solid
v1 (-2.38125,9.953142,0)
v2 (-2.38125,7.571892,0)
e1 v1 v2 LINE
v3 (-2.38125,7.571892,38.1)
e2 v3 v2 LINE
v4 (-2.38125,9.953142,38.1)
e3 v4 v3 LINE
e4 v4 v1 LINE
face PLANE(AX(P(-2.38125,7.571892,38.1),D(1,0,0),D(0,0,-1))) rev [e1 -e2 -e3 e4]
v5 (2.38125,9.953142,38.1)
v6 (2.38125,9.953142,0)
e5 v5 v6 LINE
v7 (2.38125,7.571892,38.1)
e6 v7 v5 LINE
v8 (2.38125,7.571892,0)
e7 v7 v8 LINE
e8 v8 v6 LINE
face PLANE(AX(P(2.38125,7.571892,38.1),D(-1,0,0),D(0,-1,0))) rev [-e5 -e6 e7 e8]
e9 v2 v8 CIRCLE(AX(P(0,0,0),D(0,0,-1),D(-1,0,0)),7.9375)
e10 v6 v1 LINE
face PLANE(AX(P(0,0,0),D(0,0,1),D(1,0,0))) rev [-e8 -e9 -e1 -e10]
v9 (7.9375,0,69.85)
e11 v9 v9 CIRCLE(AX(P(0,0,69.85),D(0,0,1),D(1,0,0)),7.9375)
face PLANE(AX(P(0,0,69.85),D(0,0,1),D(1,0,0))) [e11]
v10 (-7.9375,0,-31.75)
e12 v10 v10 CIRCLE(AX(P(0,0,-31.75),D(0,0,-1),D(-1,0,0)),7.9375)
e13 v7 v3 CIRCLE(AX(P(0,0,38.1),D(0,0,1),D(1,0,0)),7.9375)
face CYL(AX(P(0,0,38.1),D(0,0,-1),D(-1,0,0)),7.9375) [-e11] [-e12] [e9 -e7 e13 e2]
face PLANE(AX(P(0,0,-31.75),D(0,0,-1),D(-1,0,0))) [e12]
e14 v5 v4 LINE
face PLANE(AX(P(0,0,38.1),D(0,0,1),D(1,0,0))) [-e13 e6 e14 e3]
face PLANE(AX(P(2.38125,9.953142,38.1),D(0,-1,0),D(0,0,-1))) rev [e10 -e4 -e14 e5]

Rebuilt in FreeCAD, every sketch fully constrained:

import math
import FreeCAD as App
import Part
import Sketcher

V = App.Vector
Q = App.Units.Quantity

doc = App.newDocument("Part")
params = doc.addObject("Spreadsheet::Sheet", "Params")
for row, (alias, value) in enumerate([
    ("sketch1_radius", "0.3125 in"),
    ("sketch1_width", "0.1875 in"),
    ("sketch1_height", "0.09375 in"),
    ("pad1_length", "1.5 in"),
    ("sketch2_diameter", "0.625 in"),
    ("pad2_length", "1.25 in"),
    ("sketch3_diameter", "0.625 in"),
    ("pad3_length", "1.25 in"),
], start=1):
    params.set(f"A{row}", alias)
    params.set(f"B{row}", "=" + value)
    params.setAlias(f"B{row}", alias)

body = doc.addObject("PartDesign::Body", "Body")

sketch1 = body.newObject("Sketcher::SketchObject", "Sketch")
sketch1.AttachmentSupport = (doc.getObject("XY_Plane"), [""])
sketch1.MapMode = "FlatFace"
sketch1.addGeometry([
    Part.LineSegment(V(2.4, 7.6, 0), V(2.4, 10, 0)),
    Part.LineSegment(V(2.4, 10, 0), V(-2.4, 10, 0)),
    Part.LineSegment(V(-2.4, 10, 0), V(-2.4, 7.6, 0)),
    Part.ArcOfCircle(Part.Circle(V(0, 0, 0), V(0, 0, 1), 7.9), math.radians(107), math.radians(433)),
], False)
sketch1.addConstraint([
    Sketcher.Constraint("Coincident", 0, 2, 1, 1),
    Sketcher.Constraint("Coincident", 1, 2, 2, 1),
    Sketcher.Constraint("Coincident", 2, 2, 3, 1),
    Sketcher.Constraint("Coincident", 3, 2, 0, 1),
    Sketcher.Constraint("Vertical", 0),
    Sketcher.Constraint("Horizontal", 1),
    Sketcher.Constraint("Vertical", 2),
    Sketcher.Constraint("Coincident", 3, 3, -1, 1),
    Sketcher.Constraint("Horizontal", 2, 2, 3, 2),
    Sketcher.Constraint("Radius", 3, Q("0.3125 in")),
    Sketcher.Constraint("DistanceX", 1, 2, 1, 1, Q("0.1875 in")),
    Sketcher.Constraint("DistanceY", 0, 1, 0, 2, Q("0.09375 in")),
])
sketch1.setExpression("Constraints[9]", "Params.sketch1_radius")
sketch1.setExpression("Constraints[10]", "Params.sketch1_width")
sketch1.setExpression("Constraints[11]", "Params.sketch1_height")
pad1 = body.newObject("PartDesign::Pad", "Pad")
pad1.Profile = sketch1
pad1.setExpression("Length", "Params.pad1_length")

sketch2 = body.newObject("Sketcher::SketchObject", "Sketch001")
sketch2.AttachmentSupport = (doc.getObject("XY_Plane"), [""])
sketch2.MapMode = "FlatFace"
sketch2.AttachmentOffset = App.Placement(V(0, 0, 1.5 * 25.4), App.Rotation())
sketch2.addGeometry(Part.Circle(V(0, 0, 0), V(0, 0, 1), 8), False)
sketch2.addConstraint([
    Sketcher.Constraint("Coincident", 0, 3, -1, 1),
    Sketcher.Constraint("Diameter", 0, Q("0.625 in")),
])
sketch2.setExpression("Constraints[1]", "Params.sketch2_diameter")
pad2 = body.newObject("PartDesign::Pad", "Pad001")
pad2.Profile = sketch2
pad2.setExpression("Length", "Params.pad2_length")

sketch3 = body.newObject("Sketcher::SketchObject", "Sketch002")
sketch3.AttachmentSupport = (doc.getObject("XY_Plane"), [""])
sketch3.MapMode = "FlatFace"
sketch3.AttachmentOffset = App.Placement(V(0, 0, -1.25 * 25.4), App.Rotation())
sketch3.addGeometry(Part.Circle(V(0, 0, 0), V(0, 0, 1), 8), False)
sketch3.addConstraint([
    Sketcher.Constraint("Coincident", 0, 3, -1, 1),
    Sketcher.Constraint("Diameter", 0, Q("0.625 in")),
])
sketch3.setExpression("Constraints[1]", "Params.sketch3_diameter")
pad3 = body.newObject("PartDesign::Pad", "Pad002")
pad3.Profile = sketch3
pad3.setExpression("Length", "Params.pad3_length")

doc.recompute()
